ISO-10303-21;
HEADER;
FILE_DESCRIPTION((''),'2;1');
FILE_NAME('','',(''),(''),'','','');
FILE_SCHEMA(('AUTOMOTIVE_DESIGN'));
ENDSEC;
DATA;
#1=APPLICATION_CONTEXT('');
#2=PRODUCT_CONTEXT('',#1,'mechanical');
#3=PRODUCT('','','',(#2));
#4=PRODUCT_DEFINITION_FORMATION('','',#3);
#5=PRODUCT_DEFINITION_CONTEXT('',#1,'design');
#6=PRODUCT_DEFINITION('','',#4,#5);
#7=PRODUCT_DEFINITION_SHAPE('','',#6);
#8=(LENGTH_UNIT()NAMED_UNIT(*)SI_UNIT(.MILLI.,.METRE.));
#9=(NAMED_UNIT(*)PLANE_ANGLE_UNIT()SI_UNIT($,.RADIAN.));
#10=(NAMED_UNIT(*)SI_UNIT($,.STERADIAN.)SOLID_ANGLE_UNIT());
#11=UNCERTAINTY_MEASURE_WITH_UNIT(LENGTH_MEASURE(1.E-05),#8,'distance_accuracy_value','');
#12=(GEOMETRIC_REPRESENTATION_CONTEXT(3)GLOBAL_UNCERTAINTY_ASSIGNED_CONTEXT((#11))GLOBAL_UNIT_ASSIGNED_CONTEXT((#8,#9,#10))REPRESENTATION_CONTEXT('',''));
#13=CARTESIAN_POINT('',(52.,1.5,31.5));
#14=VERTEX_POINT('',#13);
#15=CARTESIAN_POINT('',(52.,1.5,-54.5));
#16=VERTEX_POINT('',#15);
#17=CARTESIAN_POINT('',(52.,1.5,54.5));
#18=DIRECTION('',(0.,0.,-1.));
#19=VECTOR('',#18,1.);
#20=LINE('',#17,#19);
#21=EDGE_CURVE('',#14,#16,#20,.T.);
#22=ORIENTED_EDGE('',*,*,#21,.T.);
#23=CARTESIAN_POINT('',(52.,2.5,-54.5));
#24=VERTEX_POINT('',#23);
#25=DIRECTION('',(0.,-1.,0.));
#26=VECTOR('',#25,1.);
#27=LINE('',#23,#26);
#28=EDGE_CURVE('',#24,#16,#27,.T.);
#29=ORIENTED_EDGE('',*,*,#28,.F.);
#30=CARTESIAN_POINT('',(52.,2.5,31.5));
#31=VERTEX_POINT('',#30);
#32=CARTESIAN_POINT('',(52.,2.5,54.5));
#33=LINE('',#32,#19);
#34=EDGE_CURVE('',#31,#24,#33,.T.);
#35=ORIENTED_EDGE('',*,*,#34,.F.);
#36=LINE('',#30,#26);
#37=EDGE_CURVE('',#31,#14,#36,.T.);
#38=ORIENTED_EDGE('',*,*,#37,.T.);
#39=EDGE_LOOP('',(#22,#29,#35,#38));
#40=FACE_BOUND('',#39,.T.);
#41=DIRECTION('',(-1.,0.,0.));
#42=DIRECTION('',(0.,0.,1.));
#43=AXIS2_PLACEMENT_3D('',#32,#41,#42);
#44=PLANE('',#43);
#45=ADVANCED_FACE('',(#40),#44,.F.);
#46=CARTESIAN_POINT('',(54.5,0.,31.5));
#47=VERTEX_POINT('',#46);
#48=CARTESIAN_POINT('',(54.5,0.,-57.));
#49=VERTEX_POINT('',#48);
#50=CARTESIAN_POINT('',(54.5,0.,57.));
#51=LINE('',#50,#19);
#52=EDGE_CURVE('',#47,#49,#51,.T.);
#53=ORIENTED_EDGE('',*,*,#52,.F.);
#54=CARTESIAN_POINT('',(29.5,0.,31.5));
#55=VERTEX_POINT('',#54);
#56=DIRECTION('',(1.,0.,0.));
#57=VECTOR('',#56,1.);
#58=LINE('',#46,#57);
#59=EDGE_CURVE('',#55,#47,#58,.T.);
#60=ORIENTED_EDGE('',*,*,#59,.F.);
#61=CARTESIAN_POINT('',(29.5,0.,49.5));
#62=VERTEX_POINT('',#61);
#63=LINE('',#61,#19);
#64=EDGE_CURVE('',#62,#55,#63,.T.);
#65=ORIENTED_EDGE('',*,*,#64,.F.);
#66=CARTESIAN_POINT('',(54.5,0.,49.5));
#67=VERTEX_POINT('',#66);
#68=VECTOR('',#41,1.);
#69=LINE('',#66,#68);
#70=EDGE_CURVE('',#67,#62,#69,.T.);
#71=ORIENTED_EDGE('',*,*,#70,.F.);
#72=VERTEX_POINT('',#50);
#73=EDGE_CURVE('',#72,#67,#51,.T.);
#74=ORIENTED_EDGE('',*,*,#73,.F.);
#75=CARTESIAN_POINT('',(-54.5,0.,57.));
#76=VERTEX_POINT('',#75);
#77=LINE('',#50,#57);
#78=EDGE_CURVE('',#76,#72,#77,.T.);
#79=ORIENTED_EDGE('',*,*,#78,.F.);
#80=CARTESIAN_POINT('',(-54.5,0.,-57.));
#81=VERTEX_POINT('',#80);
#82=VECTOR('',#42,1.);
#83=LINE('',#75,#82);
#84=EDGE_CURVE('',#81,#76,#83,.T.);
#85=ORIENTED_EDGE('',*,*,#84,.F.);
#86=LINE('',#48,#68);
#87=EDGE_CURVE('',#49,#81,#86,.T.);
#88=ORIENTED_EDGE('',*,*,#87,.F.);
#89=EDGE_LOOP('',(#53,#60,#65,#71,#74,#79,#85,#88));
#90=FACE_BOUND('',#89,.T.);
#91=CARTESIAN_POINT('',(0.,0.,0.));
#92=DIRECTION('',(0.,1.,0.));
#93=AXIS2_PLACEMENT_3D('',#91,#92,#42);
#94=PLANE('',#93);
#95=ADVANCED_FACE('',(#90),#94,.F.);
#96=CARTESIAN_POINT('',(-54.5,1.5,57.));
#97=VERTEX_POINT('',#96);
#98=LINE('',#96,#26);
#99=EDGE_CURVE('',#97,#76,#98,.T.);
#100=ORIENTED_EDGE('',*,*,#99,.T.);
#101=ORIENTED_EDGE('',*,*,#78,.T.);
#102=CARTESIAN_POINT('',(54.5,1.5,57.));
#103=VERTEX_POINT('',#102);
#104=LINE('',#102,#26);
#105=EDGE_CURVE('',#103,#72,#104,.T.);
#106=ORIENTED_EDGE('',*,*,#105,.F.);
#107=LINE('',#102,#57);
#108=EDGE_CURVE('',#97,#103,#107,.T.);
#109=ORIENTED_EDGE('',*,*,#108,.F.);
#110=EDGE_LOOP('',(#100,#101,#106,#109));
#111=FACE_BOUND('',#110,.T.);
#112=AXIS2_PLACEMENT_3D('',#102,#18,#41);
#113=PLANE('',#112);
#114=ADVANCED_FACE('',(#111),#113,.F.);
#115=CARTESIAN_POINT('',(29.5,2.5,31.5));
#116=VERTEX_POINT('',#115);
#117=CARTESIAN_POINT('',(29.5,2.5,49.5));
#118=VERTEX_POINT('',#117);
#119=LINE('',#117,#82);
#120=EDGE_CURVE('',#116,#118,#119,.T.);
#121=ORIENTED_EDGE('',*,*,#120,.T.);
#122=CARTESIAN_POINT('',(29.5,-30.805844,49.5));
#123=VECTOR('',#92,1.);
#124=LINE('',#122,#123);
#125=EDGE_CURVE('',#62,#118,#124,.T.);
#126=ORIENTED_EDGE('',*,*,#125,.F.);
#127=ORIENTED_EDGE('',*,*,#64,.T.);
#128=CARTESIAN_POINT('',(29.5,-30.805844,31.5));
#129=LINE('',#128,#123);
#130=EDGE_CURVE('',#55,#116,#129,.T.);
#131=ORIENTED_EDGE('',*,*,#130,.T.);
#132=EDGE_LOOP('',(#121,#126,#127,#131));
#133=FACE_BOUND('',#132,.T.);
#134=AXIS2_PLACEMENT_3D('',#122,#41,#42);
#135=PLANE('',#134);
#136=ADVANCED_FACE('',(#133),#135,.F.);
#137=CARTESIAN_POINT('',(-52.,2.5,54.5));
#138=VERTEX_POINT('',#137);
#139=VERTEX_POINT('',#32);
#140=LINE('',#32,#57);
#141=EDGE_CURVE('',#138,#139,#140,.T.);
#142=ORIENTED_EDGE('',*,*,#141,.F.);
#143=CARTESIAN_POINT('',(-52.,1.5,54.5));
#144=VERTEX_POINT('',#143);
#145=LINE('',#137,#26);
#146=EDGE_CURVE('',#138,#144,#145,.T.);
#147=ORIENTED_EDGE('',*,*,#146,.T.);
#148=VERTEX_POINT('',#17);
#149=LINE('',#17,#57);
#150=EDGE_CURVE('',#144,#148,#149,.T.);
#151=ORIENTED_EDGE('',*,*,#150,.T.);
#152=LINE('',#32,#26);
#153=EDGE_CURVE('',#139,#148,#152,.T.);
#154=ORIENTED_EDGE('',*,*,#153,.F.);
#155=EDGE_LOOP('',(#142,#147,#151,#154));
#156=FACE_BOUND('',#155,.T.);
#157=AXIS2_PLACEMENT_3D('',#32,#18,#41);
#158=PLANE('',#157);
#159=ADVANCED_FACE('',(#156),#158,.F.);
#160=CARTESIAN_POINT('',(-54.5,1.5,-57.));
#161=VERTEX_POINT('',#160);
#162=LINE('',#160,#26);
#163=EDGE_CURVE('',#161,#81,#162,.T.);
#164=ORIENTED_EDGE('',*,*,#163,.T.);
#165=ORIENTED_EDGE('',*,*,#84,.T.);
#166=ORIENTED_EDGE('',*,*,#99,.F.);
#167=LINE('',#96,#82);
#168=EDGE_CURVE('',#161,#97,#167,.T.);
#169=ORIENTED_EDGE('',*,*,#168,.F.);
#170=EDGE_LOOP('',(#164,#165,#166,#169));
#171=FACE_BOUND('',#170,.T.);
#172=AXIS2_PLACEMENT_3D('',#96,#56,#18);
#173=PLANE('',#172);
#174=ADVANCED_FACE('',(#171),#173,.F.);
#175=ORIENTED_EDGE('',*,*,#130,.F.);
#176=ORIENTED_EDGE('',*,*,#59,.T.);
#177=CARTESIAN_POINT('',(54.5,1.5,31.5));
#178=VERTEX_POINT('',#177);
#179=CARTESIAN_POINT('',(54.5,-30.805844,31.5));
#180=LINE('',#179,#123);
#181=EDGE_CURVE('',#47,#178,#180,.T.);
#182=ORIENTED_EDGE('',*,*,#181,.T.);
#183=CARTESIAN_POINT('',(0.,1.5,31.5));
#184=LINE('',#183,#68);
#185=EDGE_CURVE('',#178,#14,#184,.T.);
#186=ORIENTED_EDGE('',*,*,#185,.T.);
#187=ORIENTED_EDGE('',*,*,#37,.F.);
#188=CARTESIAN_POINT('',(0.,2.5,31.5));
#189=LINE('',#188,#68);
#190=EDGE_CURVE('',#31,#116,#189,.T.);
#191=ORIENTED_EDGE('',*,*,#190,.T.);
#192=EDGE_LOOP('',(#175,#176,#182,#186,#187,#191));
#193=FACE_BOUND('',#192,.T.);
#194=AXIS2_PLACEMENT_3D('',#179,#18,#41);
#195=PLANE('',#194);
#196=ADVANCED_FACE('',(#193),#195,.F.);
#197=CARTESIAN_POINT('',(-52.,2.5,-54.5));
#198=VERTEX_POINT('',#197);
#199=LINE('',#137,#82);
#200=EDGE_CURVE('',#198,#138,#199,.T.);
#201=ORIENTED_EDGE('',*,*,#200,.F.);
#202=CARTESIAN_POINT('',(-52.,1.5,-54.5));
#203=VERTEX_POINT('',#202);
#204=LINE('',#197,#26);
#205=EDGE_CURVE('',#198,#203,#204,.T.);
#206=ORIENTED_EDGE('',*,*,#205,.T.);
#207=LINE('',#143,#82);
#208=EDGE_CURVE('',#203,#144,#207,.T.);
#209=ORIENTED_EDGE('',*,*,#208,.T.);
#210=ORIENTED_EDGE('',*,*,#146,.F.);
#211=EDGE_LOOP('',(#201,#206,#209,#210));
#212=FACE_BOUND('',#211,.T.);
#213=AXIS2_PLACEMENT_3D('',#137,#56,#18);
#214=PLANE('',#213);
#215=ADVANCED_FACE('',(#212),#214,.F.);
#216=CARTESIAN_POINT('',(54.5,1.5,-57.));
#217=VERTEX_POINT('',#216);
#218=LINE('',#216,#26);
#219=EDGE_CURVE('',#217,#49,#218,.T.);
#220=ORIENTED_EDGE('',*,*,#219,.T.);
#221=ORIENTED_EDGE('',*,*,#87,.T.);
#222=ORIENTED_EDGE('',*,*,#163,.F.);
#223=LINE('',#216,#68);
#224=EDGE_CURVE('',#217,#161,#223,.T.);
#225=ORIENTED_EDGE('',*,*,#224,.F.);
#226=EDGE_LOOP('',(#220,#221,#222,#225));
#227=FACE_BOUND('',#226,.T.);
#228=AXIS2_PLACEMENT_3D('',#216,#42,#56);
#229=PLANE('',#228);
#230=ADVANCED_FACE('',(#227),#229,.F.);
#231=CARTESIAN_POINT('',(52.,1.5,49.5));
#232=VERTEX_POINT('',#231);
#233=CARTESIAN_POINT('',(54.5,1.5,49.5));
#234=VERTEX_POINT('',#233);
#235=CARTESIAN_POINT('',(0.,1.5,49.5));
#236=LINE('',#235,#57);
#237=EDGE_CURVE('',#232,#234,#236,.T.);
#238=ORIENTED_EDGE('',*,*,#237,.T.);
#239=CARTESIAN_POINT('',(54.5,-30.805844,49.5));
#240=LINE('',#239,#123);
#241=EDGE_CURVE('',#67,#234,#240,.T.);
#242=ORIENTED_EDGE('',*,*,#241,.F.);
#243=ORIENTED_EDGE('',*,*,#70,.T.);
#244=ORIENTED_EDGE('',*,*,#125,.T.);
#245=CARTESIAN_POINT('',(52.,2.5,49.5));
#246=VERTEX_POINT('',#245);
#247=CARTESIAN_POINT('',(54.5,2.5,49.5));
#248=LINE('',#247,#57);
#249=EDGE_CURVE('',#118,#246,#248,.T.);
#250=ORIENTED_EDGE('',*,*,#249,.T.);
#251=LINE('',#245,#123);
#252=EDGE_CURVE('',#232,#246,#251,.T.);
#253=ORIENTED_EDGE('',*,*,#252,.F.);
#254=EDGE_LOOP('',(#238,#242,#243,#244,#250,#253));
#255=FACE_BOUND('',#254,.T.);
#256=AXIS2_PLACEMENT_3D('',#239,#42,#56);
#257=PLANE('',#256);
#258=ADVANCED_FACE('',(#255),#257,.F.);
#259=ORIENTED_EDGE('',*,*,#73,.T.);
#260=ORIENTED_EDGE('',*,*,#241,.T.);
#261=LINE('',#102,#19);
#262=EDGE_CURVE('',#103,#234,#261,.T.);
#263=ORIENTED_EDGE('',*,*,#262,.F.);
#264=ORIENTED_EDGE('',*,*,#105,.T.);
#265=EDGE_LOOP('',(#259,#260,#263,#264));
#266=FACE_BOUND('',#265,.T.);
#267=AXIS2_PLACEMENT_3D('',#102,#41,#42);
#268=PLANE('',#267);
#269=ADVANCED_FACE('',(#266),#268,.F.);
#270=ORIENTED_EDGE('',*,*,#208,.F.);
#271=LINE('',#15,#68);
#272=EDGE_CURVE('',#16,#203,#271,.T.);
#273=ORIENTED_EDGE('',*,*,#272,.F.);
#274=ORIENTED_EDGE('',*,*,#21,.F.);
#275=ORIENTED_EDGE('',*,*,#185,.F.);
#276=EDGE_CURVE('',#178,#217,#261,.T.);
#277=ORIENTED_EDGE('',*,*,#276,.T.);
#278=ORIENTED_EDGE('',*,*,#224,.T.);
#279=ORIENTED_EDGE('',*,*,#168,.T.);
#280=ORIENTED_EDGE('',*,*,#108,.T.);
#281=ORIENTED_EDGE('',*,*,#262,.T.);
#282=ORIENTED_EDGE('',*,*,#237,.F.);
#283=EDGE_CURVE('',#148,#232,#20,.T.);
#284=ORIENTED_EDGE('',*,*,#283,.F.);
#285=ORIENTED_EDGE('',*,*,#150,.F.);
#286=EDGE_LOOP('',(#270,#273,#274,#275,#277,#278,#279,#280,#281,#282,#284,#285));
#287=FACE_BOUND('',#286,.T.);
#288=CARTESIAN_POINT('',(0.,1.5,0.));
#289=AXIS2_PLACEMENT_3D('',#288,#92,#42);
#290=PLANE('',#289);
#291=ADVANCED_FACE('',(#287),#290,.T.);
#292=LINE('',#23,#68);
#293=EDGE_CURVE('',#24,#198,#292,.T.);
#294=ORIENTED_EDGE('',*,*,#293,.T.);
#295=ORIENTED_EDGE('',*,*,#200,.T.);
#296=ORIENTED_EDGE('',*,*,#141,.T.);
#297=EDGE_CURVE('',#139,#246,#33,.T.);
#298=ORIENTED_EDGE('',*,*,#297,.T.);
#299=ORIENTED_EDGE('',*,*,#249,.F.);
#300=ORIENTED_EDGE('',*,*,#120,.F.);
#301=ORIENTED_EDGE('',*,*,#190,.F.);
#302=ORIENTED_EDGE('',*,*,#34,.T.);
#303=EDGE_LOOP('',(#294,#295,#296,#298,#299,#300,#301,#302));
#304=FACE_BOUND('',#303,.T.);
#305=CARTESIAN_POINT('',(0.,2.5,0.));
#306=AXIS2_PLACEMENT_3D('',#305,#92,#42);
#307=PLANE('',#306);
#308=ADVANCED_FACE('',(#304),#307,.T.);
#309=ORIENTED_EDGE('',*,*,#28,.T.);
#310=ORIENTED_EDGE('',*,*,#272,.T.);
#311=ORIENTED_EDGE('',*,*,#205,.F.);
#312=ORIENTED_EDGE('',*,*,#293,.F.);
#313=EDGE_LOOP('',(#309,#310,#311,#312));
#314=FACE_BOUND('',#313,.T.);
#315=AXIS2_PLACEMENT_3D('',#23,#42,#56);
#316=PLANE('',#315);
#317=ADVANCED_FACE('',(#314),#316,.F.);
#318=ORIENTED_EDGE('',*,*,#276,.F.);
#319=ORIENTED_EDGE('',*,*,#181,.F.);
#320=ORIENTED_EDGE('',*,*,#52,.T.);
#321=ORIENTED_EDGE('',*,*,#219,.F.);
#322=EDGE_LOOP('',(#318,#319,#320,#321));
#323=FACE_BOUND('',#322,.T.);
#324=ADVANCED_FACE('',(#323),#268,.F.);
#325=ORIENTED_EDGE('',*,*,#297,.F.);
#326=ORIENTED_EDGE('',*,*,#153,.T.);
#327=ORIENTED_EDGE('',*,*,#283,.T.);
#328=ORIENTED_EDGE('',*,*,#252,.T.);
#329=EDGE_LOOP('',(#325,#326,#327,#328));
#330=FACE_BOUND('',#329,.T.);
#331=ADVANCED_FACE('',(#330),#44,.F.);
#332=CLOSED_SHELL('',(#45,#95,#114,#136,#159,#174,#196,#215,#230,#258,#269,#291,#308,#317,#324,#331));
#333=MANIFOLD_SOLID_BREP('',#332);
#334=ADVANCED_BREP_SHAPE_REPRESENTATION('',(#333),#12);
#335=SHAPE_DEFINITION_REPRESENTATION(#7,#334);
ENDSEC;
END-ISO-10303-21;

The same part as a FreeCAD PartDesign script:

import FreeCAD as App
import Part
import Sketcher

V = App.Vector
Q = App.Units.Quantity


def add_polygon(sketch, points):
    """Adds a closed chain of lines whose ends are joined by coincident constraints."""
    first, n = sketch.GeometryCount, len(points)
    for a, b in zip(points, points[1:] + points[:1]):
        sketch.addGeometry(Part.LineSegment(App.Vector(*a, 0), App.Vector(*b, 0)), False)
    for i in range(n):
        sketch.addConstraint(Sketcher.Constraint("Coincident", first + i, 2, first + (i + 1) % n, 1))

doc = App.newDocument("Part")
body = doc.addObject("PartDesign::Body", "Body")

# Sketch on XZ plane
sketch1 = doc.addObject("Sketcher::SketchObject", "Sketch")
body.addObject(sketch1)
sketch1.AttachmentSupport = (doc.XZ_Plane, [""])
sketch1.MapMode = "FlatFace"
add_polygon(sketch1, [(-54.5, -57), (-54.5, 57), (54.5, 57), (54.5, -57)])  # lines 0-3
sketch1.addConstraint([
    Sketcher.Constraint("Vertical", 0),
    Sketcher.Constraint("Horizontal", 1),
    Sketcher.Constraint("Vertical", 2),
    Sketcher.Constraint("Horizontal", 3),
    Sketcher.Constraint("Symmetric", 0, 2, 2, 2, -1, 1),
    Sketcher.Constraint("DistanceX", 1, 1, 1, 2, Q("109 mm")),
    Sketcher.Constraint("DistanceY", 0, 1, 0, 2, Q("114 mm")),
])
pad1 = doc.addObject("PartDesign::Pad", "Pad")
body.addObject(pad1)
pad1.Profile = sketch1
pad1.Length = 1.5
pad1.Reversed = True

# Sketch on XZ plane
sketch2 = doc.addObject("Sketcher::SketchObject", "Sketch001")
body.addObject(sketch2)
sketch2.AttachmentSupport = (doc.XZ_Plane, [""])
sketch2.MapMode = "FlatFace"
sketch2.AttachmentOffset = App.Placement(V(0, 0, -1.5), App.Rotation())
add_polygon(sketch2, [(-52, -54.5), (-52, 54.5), (52, 54.5), (52, -54.5)])  # lines 0-3
sketch2.addConstraint([
    Sketcher.Constraint("Vertical", 0),
    Sketcher.Constraint("Horizontal", 1),
    Sketcher.Constraint("Vertical", 2),
    Sketcher.Constraint("Horizontal", 3),
    Sketcher.Constraint("Symmetric", 0, 2, 2, 2, -1, 1),
    Sketcher.Constraint("DistanceX", 1, 1, 1, 2, Q("104 mm")),
    Sketcher.Constraint("DistanceY", 0, 1, 0, 2, Q("109 mm")),
])
pad2 = doc.addObject("PartDesign::Pad", "Pad001")
body.addObject(pad2)
pad2.Profile = sketch2
pad2.Length = 1
pad2.Reversed = True

# Sketch on XZ plane
sketch3 = doc.addObject("Sketcher::SketchObject", "Sketch002")
body.addObject(sketch3)
sketch3.AttachmentSupport = (doc.XZ_Plane, [""])
sketch3.MapMode = "FlatFace"
sketch3.AttachmentOffset = App.Placement(V(0, 0, -2.5), App.Rotation())
add_polygon(sketch3, [(29.5, 31.5), (29.5, 49.5), (54.5, 49.5), (54.5, 31.5)])  # lines 0-3
sketch3.addConstraint([
    Sketcher.Constraint("Vertical", 0),
    Sketcher.Constraint("Horizontal", 1),
    Sketcher.Constraint("Vertical", 2),
    Sketcher.Constraint("Horizontal", 3),
    Sketcher.Constraint("DistanceX", 1, 1, 1, 2, Q("25 mm")),
    Sketcher.Constraint("DistanceY", 0, 1, 0, 2, Q("18 mm")),
    Sketcher.Constraint("DistanceX", -1, 1, 0, 2, Q("29.5 mm")),
    Sketcher.Constraint("DistanceY", -1, 1, 0, 2, Q("49.5 mm")),
])
pocket1 = doc.addObject("PartDesign::Pocket", "Pocket")
body.addObject(pocket1)
pocket1.Profile = sketch3
pocket1.Length = 2.5
pocket1.Reversed = True

doc.recompute()
